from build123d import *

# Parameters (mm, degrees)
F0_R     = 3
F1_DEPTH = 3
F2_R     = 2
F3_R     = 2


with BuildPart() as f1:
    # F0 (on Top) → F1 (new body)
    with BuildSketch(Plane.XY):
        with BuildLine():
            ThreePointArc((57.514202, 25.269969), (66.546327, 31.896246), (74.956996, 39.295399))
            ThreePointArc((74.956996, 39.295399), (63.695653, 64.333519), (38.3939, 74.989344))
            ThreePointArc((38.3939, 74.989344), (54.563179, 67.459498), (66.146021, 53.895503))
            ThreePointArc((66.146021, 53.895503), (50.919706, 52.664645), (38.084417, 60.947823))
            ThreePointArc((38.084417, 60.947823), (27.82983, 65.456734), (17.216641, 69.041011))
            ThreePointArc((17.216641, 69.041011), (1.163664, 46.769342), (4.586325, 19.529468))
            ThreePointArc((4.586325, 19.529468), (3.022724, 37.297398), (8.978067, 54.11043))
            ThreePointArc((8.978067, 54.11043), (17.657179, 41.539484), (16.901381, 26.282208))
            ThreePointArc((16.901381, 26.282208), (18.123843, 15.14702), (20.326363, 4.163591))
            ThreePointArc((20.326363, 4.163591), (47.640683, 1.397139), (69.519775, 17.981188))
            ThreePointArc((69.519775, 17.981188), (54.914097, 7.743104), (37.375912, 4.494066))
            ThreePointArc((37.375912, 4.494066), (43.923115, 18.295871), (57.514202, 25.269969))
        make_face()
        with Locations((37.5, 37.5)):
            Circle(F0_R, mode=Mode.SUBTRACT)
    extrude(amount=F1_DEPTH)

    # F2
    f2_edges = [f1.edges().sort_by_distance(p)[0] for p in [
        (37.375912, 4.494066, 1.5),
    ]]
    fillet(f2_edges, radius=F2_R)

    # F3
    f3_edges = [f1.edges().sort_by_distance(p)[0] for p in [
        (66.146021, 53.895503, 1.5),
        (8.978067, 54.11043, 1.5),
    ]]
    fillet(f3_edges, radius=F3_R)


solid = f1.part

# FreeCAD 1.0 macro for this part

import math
import FreeCAD as App
import Part
import Sketcher


def edges_at(feature, points):
    """Names of the edges that pass closest to the given points."""
    edges = feature.Shape.Edges
    near = lambda p: min(range(len(edges)), key=lambda i: edges[i].distToShape(Part.Vertex(*p))[0])
    return sorted({f"Edge{near(p) + 1}" for p in points})

doc = App.newDocument("Part")
body = doc.addObject("PartDesign::Body", "Body")

# Sketch on XY plane
sketch1 = body.newObject("Sketcher::SketchObject", "Sketch")
sketch1.AttachmentSupport = (doc.getObject("XY_Plane"), [""])
sketch1.MapMode = "FlatFace"
sketch1.addGeometry([
    Part.ArcOfCircle(Part.Circle(App.Vector(-12.7, 130.5, 0), App.Vector(0, 0, 1), 126.5), math.radians(-56.27), math.radians(-46.12)),  # 0
    Part.ArcOfCircle(Part.Circle(App.Vector(37.5, 37.5, 0), App.Vector(0, 0, 1), 37.5), math.radians(3), math.radians(89)),  # 1
    Part.ArcOfCircle(Part.Circle(App.Vector(29.2, 34, 0), App.Vector(0, 0, 1), 42), math.radians(28), math.radians(77)),  # 2
    Part.ArcOfCircle(Part.Circle(App.Vector(56.7, 75.7, 0), App.Vector(0, 0, 1), 23.8), math.radians(-142), math.radians(-67)),  # 3
    Part.ArcOfCircle(Part.Circle(App.Vector(-17.9, -52.5, 0), App.Vector(0, 0, 1), 126.5), math.radians(63.73), math.radians(73.88)),  # 4
    Part.ArcOfCircle(Part.Circle(App.Vector(37.5, 37.5, 0), App.Vector(0, 0, 1), 37.5), math.radians(123), math.radians(209)),  # 5
    Part.ArcOfCircle(Part.Circle(App.Vector(44.7, 32, 0), App.Vector(0, 0, 1), 42), math.radians(148), math.radians(197)),  # 6
    Part.ArcOfCircle(Part.Circle(App.Vector(-5.2, 35, 0), App.Vector(0, 0, 1), 23.8), math.radians(-22), math.radians(53)),  # 7
    Part.ArcOfCircle(Part.Circle(App.Vector(143.2, 34.5, 0), App.Vector(0, 0, 1), 126.5), math.radians(-176.27), math.radians(-166.12)),  # 8
    Part.ArcOfCircle(Part.Circle(App.Vector(37.5, 37.5, 0), App.Vector(0, 0, 1), 37.5), math.radians(-117), math.radians(-31)),  # 9
    Part.ArcOfCircle(Part.Circle(App.Vector(38.7, 46.4, 0), App.Vector(0, 0, 1), 42), math.radians(-92), math.radians(-43)),  # 10
    Part.ArcOfCircle(Part.Circle(App.Vector(61, 1.7, 0), App.Vector(0, 0, 1), 23.8), math.radians(98), math.radians(173)),  # 11
    Part.Circle(App.Vector(37.5, 37.5, 0), App.Vector(0, 0, 1), 3),  # 12
], False)
sketch1.addConstraint([
    Sketcher.Constraint("Coincident", 0, 2, 1, 1),
    Sketcher.Constraint("Coincident", 1, 2, 2, 2),
    Sketcher.Constraint("Coincident", 2, 1, 3, 2),
    Sketcher.Constraint("Coincident", 3, 1, 4, 1),
    Sketcher.Constraint("Coincident", 4, 2, 5, 1),
    Sketcher.Constraint("Coincident", 5, 2, 6, 2),
    Sketcher.Constraint("Coincident", 6, 1, 7, 2),
    Sketcher.Constraint("Coincident", 7, 1, 8, 1),
    Sketcher.Constraint("Coincident", 8, 2, 9, 1),
    Sketcher.Constraint("Coincident", 9, 2, 10, 2),
    Sketcher.Constraint("Coincident", 10, 1, 11, 2),
    Sketcher.Constraint("Coincident", 11, 1, 0, 1),
    Sketcher.Constraint("Coincident", 5, 3, 1, 3),
    Sketcher.Constraint("Coincident", 9, 3, 1, 3),
    Sketcher.Constraint("Coincident", 12, 3, 1, 3),
    Sketcher.Constraint("Equal", 1, 5),
    Sketcher.Constraint("Equal", 3, 7),
    Sketcher.Constraint("Equal", 5, 9),
    Sketcher.Constraint("Equal", 2, 10),
    Sketcher.Constraint("Equal", 7, 11),
    Sketcher.Constraint("Diameter", 12, 6.0),
    Sketcher.Constraint("Radius", 1, 37.5),
    Sketcher.Constraint("DistanceX", -1, 1, 1, 3, 37.5),
    Sketcher.Constraint("DistanceY", -1, 1, 1, 3, 37.499999),
    Sketcher.Constraint("Radius", 4, 126.532291),
    Sketcher.Constraint("Radius", 8, 126.532211),
    Sketcher.Constraint("Radius", 0, 126.532194),
    Sketcher.Constraint("Radius", 2, 41.975195),
    Sketcher.Constraint("Radius", 3, 23.787805),
    Sketcher.Constraint("Radius", 6, 41.975198),
    Sketcher.Constraint("DistanceY", -1, 1, 10, 3, 46.449199),
    Sketcher.Constraint("DistanceY", -1, 1, 0, 2, 39.295399),
    Sketcher.Constraint("DistanceX", -1, 1, 1, 2, 38.3939),
    Sketcher.Constraint("DistanceX", -1, 1, 11, 1, 57.514202),
    Sketcher.Constraint("DistanceX", 6, 3, 3, 3, 12.054199),
    Sketcher.Constraint("DistanceY", 4, 3, 6, 3, 84.523099),
    Sketcher.Constraint("DistanceY", 1, 2, 3, 3, 0.745702),
    Sketcher.Constraint("DistanceX", 0, 3, -1, 1, 12.74288),
    Sketcher.Constraint("DistanceX", -1, 1, 2, 3, 29.16299),
    Sketcher.Constraint("DistanceX", -1, 1, 3, 3, 56.717659),
    Sketcher.Constraint("DistanceX", 7, 3, -1, 1, 5.22135),
    Sketcher.Constraint("DistanceX", -1, 1, 8, 3, 143.165848),
    Sketcher.Constraint("DistanceY", -1, 1, 8, 3, 34.50929),
    Sketcher.Constraint("DistanceX", -1, 1, 4, 2, 17.216641),
    Sketcher.Constraint("DistanceY", -1, 1, 6, 1, 54.11043),
    Sketcher.Constraint("DistanceY", -1, 1, 9, 2, 17.981188),
    Sketcher.Constraint("DistanceY", 4, 3, 0, 3, 183.018678),
    Sketcher.Constraint("DistanceY", 11, 3, 2, 3, 32.302231),
])
pad1 = body.newObject("PartDesign::Pad", "Pad")
pad1.Profile = sketch1
pad1.Length = 3
doc.recompute()

fillet = body.newObject("PartDesign::Fillet", "Fillet")
fillet.Base = (pad1, edges_at(pad1, [(37.376, 4.494, 1.5)]))
fillet.Radius = 2
doc.recompute()

fillet2 = body.newObject("PartDesign::Fillet", "Fillet001")
fillet2.Base = (fillet, edges_at(fillet, [(66.146, 53.896, 1.5), (8.978, 54.11, 1.5)]))
fillet2.Radius = 2

doc.recompute()
